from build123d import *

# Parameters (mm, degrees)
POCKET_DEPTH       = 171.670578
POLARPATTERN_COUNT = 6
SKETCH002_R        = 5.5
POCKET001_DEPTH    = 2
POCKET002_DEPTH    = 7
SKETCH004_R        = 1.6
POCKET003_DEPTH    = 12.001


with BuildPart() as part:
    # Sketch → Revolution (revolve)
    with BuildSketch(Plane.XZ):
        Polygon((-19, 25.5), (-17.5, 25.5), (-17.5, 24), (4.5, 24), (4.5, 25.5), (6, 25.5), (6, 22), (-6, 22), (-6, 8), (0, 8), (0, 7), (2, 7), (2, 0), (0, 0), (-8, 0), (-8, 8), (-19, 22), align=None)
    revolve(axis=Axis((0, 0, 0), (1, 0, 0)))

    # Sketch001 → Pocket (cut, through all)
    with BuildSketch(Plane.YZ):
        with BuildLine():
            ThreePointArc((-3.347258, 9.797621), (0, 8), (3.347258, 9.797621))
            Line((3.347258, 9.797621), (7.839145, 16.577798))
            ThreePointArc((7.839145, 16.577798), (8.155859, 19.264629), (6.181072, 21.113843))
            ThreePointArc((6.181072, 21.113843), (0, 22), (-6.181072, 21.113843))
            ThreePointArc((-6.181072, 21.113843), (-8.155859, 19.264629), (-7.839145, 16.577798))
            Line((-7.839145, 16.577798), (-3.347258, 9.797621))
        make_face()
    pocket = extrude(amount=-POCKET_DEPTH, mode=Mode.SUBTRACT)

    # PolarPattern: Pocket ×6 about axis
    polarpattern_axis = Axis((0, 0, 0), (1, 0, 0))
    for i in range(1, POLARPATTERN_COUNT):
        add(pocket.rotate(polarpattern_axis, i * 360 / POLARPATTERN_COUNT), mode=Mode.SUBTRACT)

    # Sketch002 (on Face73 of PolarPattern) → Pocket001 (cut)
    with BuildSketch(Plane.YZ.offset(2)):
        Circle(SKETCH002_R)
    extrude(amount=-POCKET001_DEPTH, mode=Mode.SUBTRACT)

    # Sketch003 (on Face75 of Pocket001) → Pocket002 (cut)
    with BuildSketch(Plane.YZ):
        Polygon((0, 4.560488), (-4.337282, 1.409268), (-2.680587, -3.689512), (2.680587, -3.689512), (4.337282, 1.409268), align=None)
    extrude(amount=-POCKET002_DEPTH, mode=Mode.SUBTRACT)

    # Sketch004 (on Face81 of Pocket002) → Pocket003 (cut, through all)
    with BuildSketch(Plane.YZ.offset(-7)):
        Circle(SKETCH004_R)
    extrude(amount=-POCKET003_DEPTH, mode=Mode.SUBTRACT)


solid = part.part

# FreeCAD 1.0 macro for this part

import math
import FreeCAD as App
import Part
import Sketcher

V = App.Vector
Q = App.Units.Quantity


def add_polygon(sketch, points):
    """Adds a closed chain of lines whose ends are joined by coincident constraints."""
    first, n = sketch.GeometryCount, len(points)
    for a, b in zip(points, points[1:] + points[:1]):
        sketch.addGeometry(Part.LineSegment(App.Vector(*a, 0), App.Vector(*b, 0)), False)
    for i in range(n):
        sketch.addConstraint(Sketcher.Constraint("Coincident", first + i, 2, first + (i + 1) % n, 1))

doc = App.newDocument("Part")
body = doc.addObject("PartDesign::Body", "Body")

sketch1 = body.newObject("Sketcher::SketchObject", "Sketch")
sketch1.AttachmentSupport = (doc.getObject("XZ_Plane"), [""])
sketch1.MapMode = "FlatFace"
add_polygon(sketch1, [(-17.5, 25.5), (-19, 25.5), (-19, 22), (-8, 8), (-8, 0), (2, 0), (2, 7), (0, 7), (0, 8), (-6, 8), (-6, 22), (6, 22), (6, 25.5), (4.5, 25.5), (4.5, 24), (-17.5, 24)])
sketch1.addConstraint([
    Sketcher.Constraint("Horizontal", 0),
    Sketcher.Constraint("Vertical", 1),
    Sketcher.Constraint("Vertical", 3),
    Sketcher.Constraint("Horizontal", 4),
    Sketcher.Constraint("Vertical", 5),
    Sketcher.Constraint("Horizontal", 6),
    Sketcher.Constraint("Vertical", 7),
    Sketcher.Constraint("Horizontal", 8),
    Sketcher.Constraint("Vertical", 9),
    Sketcher.Constraint("Horizontal", 10),
    Sketcher.Constraint("Vertical", 11),
    Sketcher.Constraint("Horizontal", 12),
    Sketcher.Constraint("Vertical", 13),
    Sketcher.Constraint("Horizontal", 14),
    Sketcher.Constraint("Vertical", 15),
    Sketcher.Constraint("PointOnObject", 3, 2, -1),
    Sketcher.Constraint("PointOnObject", 6, 2, -2),
    Sketcher.Constraint("Horizontal", 2, 2, 7, 2),
    Sketcher.Constraint("Horizontal", 1, 2, 9, 2),
    Sketcher.Constraint("Horizontal", 0, 2, 11, 2),
    Sketcher.Constraint("Equal", 0, 12),
    Sketcher.Constraint("Equal", 12, 13),
    Sketcher.Constraint("DistanceX", 4, 1, 4, 2, 10.0),
    Sketcher.Constraint("DistanceX", 6, 2, 6, 1, 2.0),
    Sketcher.Constraint("DistanceX", 8, 2, 8, 1, 6.0),
    Sketcher.Constraint("DistanceX", 10, 1, 10, 2, 12.0),
    Sketcher.Constraint("DistanceX", 14, 2, 14, 1, 22.0),
    Sketcher.Constraint("DistanceY", 3, 2, 3, 1, 8.0),
    Sketcher.Constraint("DistanceY", 5, 1, 5, 2, 7.0),
    Sketcher.Constraint("DistanceY", 9, 1, 9, 2, 14.0),
    Sketcher.Constraint("DistanceX", 0, 2, 0, 1, 1.5),
    Sketcher.Constraint("DistanceY", 1, 2, 1, 1, 3.5),
])
revolution = body.newObject("PartDesign::Revolution", "Revolution")
revolution.Profile = sketch1
revolution.ReferenceAxis = (sketch1, ["H_Axis"])
revolution.Angle = 360

sketch2 = body.newObject("Sketcher::SketchObject", "Sketch001")
sketch2.AttachmentSupport = (doc.getObject("YZ_Plane"), [""])
sketch2.MapMode = "FlatFace"
sketch2.addGeometry([
    Part.ArcOfCircle(Part.Circle(V(0, 12.015189, 0), V(0, 0, 1), 4.015189), math.radians(-146.475409), math.radians(-33.524591)),
    Part.LineSegment(V(3.347258, 9.797621, 0), V(7.839145, 16.577798, 0)),
    Part.ArcOfCircle(Part.Circle(V(5.338199, 18.234683, 0), V(0, 0, 1), 3), math.radians(-33.524595), math.radians(73.682621)),
    Part.ArcOfCircle(Part.Circle(V(0, -0.00001, 0), V(0, 0, 1), 22.00001), math.radians(73.682629), math.radians(106.317371)),
    Part.ArcOfCircle(Part.Circle(V(-5.338199, 18.234683, 0), V(0, 0, 1), 3), math.radians(106.317379), math.radians(213.524595)),
    Part.LineSegment(V(-7.839145, 16.577798, 0), V(-3.347258, 9.797621, 0)),
], False)
sketch2.addConstraint([
    Sketcher.Constraint("Coincident", 0, 2, 1, 1),
    Sketcher.Constraint("Coincident", 1, 2, 2, 1),
    Sketcher.Constraint("Coincident", 2, 2, 3, 1),
    Sketcher.Constraint("Coincident", 3, 2, 4, 1),
    Sketcher.Constraint("Coincident", 4, 2, 5, 1),
    Sketcher.Constraint("Coincident", 5, 2, 0, 1),
    Sketcher.Constraint("Coincident", 3, 3, -1, 1),
    Sketcher.Constraint("PointOnObject", 0, 3, -2),
    Sketcher.Constraint("Radius", 2, 3.0),
    Sketcher.Constraint("Radius", 4, 3.0),
    Sketcher.Constraint("Radius", 0, 4.015189),
    Sketcher.Constraint("Radius", 3, 22.00001),
    Sketcher.Constraint("DistanceX", -1, 1, 2, 3, 5.338199),
    Sketcher.Constraint("DistanceX", 4, 3, -1, 1, 5.338199),
    Sketcher.Constraint("DistanceY", -1, 1, 1, 2, 16.577798),
    Sketcher.Constraint("DistanceY", -1, 1, 4, 2, 16.577798),
    Sketcher.Constraint("DistanceY", 3, 3, 0, 3, 12.015199),
    Sketcher.Constraint("DistanceX", -1, 1, 0, 2, 3.347258),
    Sketcher.Constraint("DistanceX", -1, 1, 2, 2, 6.181072),
    Sketcher.Constraint("DistanceX", 3, 2, -1, 1, 6.181072),
    Sketcher.Constraint("DistanceX", 5, 2, -1, 1, 3.347258),
])
pocket1 = body.newObject("PartDesign::Pocket", "Pocket")
pocket1.Profile = sketch2
pocket1.Type = "ThroughAll"
doc.recompute()

polarpattern = body.newObject("PartDesign::PolarPattern", "PolarPattern")
polarpattern.Originals = [pocket1]
polarpattern.Axis = (doc.getObject("X_Axis"), [""])
polarpattern.Angle = 360
polarpattern.Occurrences = 6
body.Tip = polarpattern

sketch3 = body.newObject("Sketcher::SketchObject", "Sketch002")
sketch3.AttachmentSupport = (doc.getObject("YZ_Plane"), [""])
sketch3.MapMode = "FlatFace"
sketch3.AttachmentOffset = App.Placement(V(0, 0, 2), App.Rotation())
sketch3.addGeometry(Part.Circle(V(0, 0, 0), V(0, 0, 1), 6), False)
sketch3.addConstraint([
    Sketcher.Constraint("Coincident", 0, 3, -1, 1),
    Sketcher.Constraint("Diameter", 0, 11.0),
])
pocket2 = body.newObject("PartDesign::Pocket", "Pocket001")
pocket2.Profile = sketch3
pocket2.Length = 2

sketch4 = body.newObject("Sketcher::SketchObject", "Sketch003")
sketch4.AttachmentSupport = (doc.getObject("YZ_Plane"), [""])
sketch4.MapMode = "FlatFace"
add_polygon(sketch4, [(0, 5), (-4, 1), (-3, -4), (3, -4), (4, 1)])
sketch4.addConstraint([
    Sketcher.Constraint("Horizontal", 2),
    Sketcher.Constraint("Symmetric", 0, 2, 3, 2, -2),
    Sketcher.Constraint("PointOnObject", 4, 2, -2),
    Sketcher.Constraint("Equal", 0, 1),
    Sketcher.Constraint("Equal", 1, 3),
    Sketcher.Constraint("Angle", 0, Q("-143.999999 deg")),
    Sketcher.Constraint("Angle", 1, Q("-71.99999 deg")),
    Sketcher.Constraint("DistanceY", 1, 2, 4, 2, 8.25),
    Sketcher.Constraint("DistanceY", -1, 1, 4, 2, 4.560488),
])
pocket3 = body.newObject("PartDesign::Pocket", "Pocket002")
pocket3.Profile = sketch4
pocket3.Length = 7

sketch5 = body.newObject("Sketcher::SketchObject", "Sketch004")
sketch5.AttachmentSupport = (doc.getObject("YZ_Plane"), [""])
sketch5.MapMode = "FlatFace"
sketch5.AttachmentOffset = App.Placement(V(0, 0, -7), App.Rotation())
sketch5.addGeometry(Part.Circle(V(0, 0, 0), V(0, 0, 1), 1.6), False)
sketch5.addConstraint([
    Sketcher.Constraint("Coincident", 0, 3, -1, 1),
    Sketcher.Constraint("Diameter", 0, 3.2),
])
pocket4 = body.newObject("PartDesign::Pocket", "Pocket003")
pocket4.Profile = sketch5
pocket4.Type = "ThroughAll"

doc.recompute()
